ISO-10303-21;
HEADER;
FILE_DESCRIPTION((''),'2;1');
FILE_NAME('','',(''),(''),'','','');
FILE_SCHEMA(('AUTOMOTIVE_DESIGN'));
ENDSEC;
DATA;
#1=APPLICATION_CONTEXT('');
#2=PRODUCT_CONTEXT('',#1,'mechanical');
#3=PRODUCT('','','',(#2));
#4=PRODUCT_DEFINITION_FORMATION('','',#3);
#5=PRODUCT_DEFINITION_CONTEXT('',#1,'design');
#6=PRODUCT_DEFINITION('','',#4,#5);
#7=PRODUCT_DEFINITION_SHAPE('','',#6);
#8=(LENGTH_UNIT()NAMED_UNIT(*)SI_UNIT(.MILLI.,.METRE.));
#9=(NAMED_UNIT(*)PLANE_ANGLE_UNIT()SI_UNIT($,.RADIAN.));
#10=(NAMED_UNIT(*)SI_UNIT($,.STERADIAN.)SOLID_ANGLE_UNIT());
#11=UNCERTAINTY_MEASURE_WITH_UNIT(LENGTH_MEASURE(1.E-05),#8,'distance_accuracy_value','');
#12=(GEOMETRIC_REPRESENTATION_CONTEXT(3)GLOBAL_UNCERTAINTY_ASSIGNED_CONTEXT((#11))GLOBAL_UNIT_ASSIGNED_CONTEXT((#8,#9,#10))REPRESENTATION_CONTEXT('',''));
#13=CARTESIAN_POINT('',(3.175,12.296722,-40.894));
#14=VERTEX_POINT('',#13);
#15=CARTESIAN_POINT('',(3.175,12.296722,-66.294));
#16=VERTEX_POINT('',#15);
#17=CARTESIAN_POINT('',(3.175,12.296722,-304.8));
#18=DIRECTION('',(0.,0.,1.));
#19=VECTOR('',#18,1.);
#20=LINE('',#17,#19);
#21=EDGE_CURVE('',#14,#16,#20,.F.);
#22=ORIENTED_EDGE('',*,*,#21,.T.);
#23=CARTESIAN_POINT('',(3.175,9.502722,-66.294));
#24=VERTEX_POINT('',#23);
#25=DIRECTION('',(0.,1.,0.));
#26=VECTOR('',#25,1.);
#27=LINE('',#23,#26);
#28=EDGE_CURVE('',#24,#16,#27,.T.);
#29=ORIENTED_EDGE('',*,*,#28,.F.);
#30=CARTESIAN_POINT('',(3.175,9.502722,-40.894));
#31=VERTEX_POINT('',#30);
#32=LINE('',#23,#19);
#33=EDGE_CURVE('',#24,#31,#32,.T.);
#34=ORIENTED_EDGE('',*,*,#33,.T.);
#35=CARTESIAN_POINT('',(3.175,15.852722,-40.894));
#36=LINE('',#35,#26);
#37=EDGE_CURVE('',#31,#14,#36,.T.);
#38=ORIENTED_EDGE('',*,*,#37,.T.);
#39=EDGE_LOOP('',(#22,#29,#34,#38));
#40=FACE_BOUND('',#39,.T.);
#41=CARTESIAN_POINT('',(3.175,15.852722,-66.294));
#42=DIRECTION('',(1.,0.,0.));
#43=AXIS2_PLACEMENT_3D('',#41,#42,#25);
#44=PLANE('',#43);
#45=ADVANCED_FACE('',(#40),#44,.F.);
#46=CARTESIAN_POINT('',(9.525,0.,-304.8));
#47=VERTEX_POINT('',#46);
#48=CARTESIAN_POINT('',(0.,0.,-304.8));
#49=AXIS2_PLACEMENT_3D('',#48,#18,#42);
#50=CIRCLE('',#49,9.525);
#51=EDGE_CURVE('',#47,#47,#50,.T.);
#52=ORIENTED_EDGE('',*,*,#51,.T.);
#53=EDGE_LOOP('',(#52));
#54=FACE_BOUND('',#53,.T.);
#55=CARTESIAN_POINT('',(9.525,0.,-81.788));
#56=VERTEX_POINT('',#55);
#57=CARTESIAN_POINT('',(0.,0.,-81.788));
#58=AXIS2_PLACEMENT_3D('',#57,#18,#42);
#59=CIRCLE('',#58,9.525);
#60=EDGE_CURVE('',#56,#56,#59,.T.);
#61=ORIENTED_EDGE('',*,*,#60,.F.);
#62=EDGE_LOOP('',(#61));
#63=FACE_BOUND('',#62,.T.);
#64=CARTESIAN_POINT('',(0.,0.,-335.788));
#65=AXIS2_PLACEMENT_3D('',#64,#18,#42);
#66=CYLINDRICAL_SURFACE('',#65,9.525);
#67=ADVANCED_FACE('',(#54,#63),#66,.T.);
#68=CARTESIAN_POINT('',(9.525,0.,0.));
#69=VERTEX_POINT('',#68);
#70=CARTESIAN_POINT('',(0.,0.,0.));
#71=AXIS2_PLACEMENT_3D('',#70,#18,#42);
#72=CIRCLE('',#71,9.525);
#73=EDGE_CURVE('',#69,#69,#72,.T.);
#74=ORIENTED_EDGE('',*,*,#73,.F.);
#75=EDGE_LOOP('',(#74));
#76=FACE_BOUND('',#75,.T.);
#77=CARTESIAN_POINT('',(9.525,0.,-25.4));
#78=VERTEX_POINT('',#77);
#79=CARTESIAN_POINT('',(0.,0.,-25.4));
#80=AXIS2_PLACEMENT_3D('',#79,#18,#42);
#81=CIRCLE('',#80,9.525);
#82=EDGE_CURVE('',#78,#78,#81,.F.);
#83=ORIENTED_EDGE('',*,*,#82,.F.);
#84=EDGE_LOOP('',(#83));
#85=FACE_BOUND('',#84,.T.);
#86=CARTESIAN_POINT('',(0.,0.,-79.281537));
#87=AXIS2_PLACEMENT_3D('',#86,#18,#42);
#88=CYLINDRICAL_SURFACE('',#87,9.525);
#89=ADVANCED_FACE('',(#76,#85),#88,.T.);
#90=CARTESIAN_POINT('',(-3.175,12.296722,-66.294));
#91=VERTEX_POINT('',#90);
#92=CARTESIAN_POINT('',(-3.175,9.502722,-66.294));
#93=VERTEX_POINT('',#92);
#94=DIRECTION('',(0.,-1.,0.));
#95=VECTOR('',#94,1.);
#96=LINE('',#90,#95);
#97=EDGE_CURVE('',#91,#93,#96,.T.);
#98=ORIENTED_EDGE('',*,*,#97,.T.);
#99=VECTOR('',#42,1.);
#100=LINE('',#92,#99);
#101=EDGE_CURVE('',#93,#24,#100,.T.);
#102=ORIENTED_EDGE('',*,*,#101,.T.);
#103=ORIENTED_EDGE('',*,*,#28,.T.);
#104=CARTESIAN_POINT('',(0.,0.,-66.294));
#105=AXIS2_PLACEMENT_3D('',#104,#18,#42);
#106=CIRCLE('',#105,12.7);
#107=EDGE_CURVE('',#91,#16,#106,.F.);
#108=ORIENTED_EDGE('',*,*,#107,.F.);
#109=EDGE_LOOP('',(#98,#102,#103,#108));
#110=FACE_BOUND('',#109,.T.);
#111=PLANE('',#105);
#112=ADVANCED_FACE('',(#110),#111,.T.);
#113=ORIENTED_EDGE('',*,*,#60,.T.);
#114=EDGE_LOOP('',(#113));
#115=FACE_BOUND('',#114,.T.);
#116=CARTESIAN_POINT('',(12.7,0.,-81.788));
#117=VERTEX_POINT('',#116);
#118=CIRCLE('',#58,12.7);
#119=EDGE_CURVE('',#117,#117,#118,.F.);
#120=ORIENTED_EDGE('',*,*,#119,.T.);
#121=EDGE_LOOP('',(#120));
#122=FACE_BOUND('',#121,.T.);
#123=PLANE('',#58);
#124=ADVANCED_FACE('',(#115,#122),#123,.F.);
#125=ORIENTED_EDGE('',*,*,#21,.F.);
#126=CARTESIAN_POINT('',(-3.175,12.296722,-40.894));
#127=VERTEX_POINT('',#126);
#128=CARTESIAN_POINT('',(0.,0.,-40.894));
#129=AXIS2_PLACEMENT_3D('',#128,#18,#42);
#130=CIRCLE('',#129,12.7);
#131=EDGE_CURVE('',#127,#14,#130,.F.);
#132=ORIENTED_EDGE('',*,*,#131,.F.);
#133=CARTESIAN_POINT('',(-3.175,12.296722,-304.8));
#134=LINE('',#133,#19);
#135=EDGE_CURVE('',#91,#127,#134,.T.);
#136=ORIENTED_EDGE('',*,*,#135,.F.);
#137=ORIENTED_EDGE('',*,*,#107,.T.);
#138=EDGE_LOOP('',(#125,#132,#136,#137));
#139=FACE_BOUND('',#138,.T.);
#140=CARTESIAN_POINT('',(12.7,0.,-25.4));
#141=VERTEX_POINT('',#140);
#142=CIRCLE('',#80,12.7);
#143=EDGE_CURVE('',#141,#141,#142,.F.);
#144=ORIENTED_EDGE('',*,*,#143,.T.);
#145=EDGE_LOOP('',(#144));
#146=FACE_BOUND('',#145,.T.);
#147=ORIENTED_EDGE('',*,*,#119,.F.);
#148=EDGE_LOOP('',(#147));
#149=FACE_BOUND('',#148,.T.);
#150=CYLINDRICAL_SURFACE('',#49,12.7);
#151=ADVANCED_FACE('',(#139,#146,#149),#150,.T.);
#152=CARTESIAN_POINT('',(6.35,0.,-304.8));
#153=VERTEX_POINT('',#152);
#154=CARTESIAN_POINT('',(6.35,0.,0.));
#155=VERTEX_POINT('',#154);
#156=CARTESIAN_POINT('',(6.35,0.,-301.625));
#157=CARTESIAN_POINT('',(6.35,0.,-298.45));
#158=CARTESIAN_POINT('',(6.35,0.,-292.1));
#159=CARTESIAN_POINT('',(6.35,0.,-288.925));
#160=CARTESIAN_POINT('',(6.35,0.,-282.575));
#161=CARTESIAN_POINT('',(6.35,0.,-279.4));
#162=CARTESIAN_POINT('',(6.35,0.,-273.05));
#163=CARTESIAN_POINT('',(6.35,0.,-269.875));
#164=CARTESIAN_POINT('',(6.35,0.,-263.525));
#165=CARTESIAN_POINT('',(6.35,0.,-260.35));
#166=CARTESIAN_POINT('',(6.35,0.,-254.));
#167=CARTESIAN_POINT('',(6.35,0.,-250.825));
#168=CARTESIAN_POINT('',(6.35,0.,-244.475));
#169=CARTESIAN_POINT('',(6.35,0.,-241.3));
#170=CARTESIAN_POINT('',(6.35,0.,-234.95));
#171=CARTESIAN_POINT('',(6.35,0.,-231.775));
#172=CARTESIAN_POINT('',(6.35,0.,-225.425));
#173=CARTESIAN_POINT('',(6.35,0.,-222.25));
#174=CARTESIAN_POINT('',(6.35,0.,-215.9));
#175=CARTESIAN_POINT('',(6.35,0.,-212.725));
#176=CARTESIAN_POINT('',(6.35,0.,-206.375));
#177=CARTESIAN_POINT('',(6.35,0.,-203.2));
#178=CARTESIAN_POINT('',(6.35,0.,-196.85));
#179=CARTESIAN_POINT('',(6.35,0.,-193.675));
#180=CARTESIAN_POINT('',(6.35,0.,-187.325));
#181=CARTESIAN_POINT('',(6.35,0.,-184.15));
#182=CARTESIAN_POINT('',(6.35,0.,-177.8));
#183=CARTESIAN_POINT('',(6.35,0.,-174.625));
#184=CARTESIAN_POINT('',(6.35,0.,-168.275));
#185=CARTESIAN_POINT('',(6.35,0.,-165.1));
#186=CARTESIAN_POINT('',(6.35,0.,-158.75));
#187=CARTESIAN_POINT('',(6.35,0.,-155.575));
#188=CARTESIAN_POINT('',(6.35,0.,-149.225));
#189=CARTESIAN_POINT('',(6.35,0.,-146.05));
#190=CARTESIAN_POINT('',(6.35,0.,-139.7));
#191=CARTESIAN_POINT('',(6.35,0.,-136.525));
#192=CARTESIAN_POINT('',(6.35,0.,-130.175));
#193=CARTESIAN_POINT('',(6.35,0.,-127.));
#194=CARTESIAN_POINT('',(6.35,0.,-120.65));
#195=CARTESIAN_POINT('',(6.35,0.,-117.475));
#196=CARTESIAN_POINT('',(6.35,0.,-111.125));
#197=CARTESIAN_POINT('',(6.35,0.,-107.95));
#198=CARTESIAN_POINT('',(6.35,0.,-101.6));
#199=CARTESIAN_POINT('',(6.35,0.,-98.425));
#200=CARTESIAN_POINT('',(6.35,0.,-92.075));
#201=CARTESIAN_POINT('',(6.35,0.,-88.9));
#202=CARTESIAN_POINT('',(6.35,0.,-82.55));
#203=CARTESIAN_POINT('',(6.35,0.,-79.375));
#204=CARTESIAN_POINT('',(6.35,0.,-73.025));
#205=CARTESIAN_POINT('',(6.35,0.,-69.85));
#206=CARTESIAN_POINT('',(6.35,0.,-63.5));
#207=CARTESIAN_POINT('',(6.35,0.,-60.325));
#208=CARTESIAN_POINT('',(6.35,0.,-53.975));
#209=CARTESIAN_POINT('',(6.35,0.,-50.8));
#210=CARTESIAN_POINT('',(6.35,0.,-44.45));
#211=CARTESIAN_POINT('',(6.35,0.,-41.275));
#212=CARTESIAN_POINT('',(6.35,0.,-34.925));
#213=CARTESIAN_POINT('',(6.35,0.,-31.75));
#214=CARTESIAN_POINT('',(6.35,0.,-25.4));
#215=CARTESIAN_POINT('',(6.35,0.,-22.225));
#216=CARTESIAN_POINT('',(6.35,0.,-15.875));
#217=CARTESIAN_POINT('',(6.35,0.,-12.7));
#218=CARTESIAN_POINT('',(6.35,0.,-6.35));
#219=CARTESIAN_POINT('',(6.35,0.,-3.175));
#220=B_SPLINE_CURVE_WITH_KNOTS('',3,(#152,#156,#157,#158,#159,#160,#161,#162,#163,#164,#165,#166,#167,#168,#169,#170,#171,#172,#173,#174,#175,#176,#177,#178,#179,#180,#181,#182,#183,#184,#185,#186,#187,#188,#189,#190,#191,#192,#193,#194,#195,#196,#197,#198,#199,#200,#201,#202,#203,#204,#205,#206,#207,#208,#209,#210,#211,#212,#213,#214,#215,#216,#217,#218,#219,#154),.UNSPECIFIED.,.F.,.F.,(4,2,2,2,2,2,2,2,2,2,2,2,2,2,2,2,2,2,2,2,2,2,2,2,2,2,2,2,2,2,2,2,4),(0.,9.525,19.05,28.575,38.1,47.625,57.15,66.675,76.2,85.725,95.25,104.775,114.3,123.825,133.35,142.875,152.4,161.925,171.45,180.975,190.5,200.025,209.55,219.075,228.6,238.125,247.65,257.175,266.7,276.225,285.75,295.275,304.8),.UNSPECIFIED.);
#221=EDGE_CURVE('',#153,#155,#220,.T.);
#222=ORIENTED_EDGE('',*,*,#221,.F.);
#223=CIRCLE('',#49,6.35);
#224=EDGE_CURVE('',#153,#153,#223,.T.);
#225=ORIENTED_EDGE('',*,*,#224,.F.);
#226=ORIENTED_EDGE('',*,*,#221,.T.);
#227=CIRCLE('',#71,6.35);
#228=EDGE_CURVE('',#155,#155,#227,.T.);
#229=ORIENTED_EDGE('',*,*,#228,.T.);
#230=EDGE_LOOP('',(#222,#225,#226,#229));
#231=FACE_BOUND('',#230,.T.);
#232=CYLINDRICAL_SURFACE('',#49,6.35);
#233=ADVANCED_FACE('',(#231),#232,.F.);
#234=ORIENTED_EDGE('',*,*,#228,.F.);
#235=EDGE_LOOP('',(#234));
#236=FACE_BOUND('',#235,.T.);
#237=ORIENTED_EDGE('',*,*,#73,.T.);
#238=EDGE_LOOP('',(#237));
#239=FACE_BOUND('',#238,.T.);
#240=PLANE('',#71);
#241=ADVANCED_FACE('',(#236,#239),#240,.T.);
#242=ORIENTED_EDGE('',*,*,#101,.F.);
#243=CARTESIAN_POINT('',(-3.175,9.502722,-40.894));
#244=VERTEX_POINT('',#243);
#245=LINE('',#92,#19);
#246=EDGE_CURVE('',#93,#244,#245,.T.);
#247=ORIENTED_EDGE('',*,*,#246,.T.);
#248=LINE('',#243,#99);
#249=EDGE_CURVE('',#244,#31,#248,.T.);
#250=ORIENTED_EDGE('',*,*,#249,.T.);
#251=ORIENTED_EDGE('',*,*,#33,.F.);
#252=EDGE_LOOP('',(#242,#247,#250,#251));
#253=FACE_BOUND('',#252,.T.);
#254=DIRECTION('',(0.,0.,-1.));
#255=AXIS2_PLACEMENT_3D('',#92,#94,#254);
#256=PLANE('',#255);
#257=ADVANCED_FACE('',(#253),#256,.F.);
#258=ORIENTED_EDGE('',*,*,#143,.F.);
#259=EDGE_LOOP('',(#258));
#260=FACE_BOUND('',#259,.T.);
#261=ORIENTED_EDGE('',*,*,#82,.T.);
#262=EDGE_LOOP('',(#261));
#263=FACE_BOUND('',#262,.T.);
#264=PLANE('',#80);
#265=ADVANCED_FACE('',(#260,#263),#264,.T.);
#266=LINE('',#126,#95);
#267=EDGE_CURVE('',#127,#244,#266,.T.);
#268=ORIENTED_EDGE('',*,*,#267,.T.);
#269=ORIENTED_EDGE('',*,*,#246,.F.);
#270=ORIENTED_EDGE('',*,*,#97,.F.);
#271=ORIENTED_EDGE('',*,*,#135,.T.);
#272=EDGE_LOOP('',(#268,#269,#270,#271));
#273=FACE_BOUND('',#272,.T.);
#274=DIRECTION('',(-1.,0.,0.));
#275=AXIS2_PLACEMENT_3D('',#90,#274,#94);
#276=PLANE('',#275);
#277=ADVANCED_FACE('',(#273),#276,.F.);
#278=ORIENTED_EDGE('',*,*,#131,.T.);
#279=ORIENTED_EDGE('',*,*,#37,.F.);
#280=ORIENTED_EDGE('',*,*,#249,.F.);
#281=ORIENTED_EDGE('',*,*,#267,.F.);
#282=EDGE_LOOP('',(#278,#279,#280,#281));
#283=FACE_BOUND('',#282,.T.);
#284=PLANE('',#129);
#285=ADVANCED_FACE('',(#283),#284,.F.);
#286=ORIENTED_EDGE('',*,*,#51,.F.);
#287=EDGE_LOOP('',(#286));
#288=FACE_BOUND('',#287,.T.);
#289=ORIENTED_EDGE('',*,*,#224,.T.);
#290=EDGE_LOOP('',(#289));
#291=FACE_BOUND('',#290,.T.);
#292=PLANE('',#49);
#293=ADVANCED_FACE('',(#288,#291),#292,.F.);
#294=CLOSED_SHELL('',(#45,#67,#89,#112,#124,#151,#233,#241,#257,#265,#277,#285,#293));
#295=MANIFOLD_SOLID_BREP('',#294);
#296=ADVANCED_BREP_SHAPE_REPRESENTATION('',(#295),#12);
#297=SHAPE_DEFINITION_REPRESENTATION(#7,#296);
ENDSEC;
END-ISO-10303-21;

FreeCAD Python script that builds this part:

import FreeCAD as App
import Part
import Sketcher
from FreeCAD import Vector
Q = App.Units.Quantity


def add_polygon(sketch, points):
    """Adds a closed chain of lines whose ends are joined by coincident constraints."""
    first, n = sketch.GeometryCount, len(points)
    for a, b in zip(points, points[1:] + points[:1]):
        sketch.addGeometry(Part.LineSegment(App.Vector(*a, 0), App.Vector(*b, 0)), False)
    for i in range(n):
        sketch.addConstraint(Sketcher.Constraint("Coincident", first + i, 2, first + (i + 1) % n, 1))

doc = App.newDocument("Part")
body = doc.addObject("PartDesign::Body", "Body")

# Sketch on XY plane
sketch1 = doc.addObject("Sketcher::SketchObject", "Sketch")
body.addObject(sketch1)
sketch1.AttachmentSupport = (doc.XY_Plane, [""])
sketch1.MapMode = "FlatFace"
sketch1.addGeometry([
    Part.Circle(Vector(0, 0, 0), Vector(0, 0, 1), 13),
    Part.Circle(Vector(0, 0, 0), Vector(0, 0, 1), 6),
], False)
sketch1.addConstraint([
    Sketcher.Constraint("Coincident", 0, 3, -1, 1),
    Sketcher.Constraint("Coincident", 1, 3, -1, 1),
    Sketcher.Constraint("Diameter", 0, Q("1 in")),
    Sketcher.Constraint("Diameter", 1, Q("0.5 in")),
])
pad1 = doc.addObject("PartDesign::Pad", "Pad")
body.addObject(pad1)
pad1.Profile = sketch1
pad1.Length = Q("12 in")
pad1.Reversed = True

# Sketch on XY plane
sketch2 = doc.addObject("Sketcher::SketchObject", "Sketch001")
body.addObject(sketch2)
sketch2.AttachmentSupport = (doc.XY_Plane, [""])
sketch2.MapMode = "FlatFace"
sketch2.AttachmentOffset = App.Placement(Vector(0, 0, -3.22 * 25.4), App.Rotation())
sketch2.addGeometry([
    Part.Circle(Vector(0, 0, 0), Vector(0, 0, 1), 19),
    Part.Circle(Vector(0, 0, 0), Vector(0, 0, 1), 10),
], False)
sketch2.addConstraint([
    Sketcher.Constraint("Coincident", 0, 3, -1, 1),
    Sketcher.Constraint("Coincident", 1, 3, -1, 1),
    Sketcher.Constraint("Diameter", 0, Q("1.5 in")),
    Sketcher.Constraint("Diameter", 1, Q("0.75 in")),
])
pocket1 = doc.addObject("PartDesign::Pocket", "Pocket")
body.addObject(pocket1)
pocket1.Profile = sketch2
pocket1.Length = Q("10 in")

# Sketch on XY plane
sketch3 = doc.addObject("Sketcher::SketchObject", "Sketch002")
body.addObject(sketch3)
sketch3.AttachmentSupport = (doc.XY_Plane, [""])
sketch3.MapMode = "FlatFace"
sketch3.AttachmentOffset = App.Placement(Vector(0, 0, -1.61 * 25.4), App.Rotation())
add_polygon(sketch3, [(-3, 16), (-3, 10), (3, 10), (3, 16)])  # lines 0-3
sketch3.addConstraint([
    Sketcher.Constraint("Vertical", 0),
    Sketcher.Constraint("Horizontal", 1),
    Sketcher.Constraint("Vertical", 2),
    Sketcher.Constraint("Horizontal", 3),
    Sketcher.Constraint("Equal", 3, 0),
    Sketcher.Constraint("DistanceX", 1, 1, 1, 2, Q("0.25 in")),
    Sketcher.Constraint("DistanceX", 0, 2, -1, 1, Q("0.125 in")),
    Sketcher.Constraint("DistanceY", -1, 1, 0, 2, 9.502722),
])
pocket2 = doc.addObject("PartDesign::Pocket", "Pocket001")
body.addObject(pocket2)
pocket2.Profile = sketch3
pocket2.Length = Q("1 in")

# Sketch on XY plane
sketch4 = doc.addObject("Sketcher::SketchObject", "Sketch003")
body.addObject(sketch4)
sketch4.AttachmentSupport = (doc.XY_Plane, [""])
sketch4.MapMode = "FlatFace"
sketch4.AttachmentOffset = App.Placement(Vector(0, 0, -1 * 25.4), App.Rotation())
sketch4.addGeometry([
    Part.Circle(Vector(0, 0, 0), Vector(0, 0, 1), 19),
    Part.Circle(Vector(0, 0, 0), Vector(0, 0, 1), 10),
], False)
sketch4.addConstraint([
    Sketcher.Constraint("Coincident", 0, 3, -1, 1),
    Sketcher.Constraint("Coincident", 1, 3, -1, 1),
    Sketcher.Constraint("Diameter", 0, Q("1.5 in")),
    Sketcher.Constraint("Diameter", 1, Q("0.75 in")),
])
pocket3 = doc.addObject("PartDesign::Pocket", "Pocket002")
body.addObject(pocket3)
pocket3.Profile = sketch4
pocket3.Length = Q("1 in")
pocket3.Reversed = True

doc.recompute()
